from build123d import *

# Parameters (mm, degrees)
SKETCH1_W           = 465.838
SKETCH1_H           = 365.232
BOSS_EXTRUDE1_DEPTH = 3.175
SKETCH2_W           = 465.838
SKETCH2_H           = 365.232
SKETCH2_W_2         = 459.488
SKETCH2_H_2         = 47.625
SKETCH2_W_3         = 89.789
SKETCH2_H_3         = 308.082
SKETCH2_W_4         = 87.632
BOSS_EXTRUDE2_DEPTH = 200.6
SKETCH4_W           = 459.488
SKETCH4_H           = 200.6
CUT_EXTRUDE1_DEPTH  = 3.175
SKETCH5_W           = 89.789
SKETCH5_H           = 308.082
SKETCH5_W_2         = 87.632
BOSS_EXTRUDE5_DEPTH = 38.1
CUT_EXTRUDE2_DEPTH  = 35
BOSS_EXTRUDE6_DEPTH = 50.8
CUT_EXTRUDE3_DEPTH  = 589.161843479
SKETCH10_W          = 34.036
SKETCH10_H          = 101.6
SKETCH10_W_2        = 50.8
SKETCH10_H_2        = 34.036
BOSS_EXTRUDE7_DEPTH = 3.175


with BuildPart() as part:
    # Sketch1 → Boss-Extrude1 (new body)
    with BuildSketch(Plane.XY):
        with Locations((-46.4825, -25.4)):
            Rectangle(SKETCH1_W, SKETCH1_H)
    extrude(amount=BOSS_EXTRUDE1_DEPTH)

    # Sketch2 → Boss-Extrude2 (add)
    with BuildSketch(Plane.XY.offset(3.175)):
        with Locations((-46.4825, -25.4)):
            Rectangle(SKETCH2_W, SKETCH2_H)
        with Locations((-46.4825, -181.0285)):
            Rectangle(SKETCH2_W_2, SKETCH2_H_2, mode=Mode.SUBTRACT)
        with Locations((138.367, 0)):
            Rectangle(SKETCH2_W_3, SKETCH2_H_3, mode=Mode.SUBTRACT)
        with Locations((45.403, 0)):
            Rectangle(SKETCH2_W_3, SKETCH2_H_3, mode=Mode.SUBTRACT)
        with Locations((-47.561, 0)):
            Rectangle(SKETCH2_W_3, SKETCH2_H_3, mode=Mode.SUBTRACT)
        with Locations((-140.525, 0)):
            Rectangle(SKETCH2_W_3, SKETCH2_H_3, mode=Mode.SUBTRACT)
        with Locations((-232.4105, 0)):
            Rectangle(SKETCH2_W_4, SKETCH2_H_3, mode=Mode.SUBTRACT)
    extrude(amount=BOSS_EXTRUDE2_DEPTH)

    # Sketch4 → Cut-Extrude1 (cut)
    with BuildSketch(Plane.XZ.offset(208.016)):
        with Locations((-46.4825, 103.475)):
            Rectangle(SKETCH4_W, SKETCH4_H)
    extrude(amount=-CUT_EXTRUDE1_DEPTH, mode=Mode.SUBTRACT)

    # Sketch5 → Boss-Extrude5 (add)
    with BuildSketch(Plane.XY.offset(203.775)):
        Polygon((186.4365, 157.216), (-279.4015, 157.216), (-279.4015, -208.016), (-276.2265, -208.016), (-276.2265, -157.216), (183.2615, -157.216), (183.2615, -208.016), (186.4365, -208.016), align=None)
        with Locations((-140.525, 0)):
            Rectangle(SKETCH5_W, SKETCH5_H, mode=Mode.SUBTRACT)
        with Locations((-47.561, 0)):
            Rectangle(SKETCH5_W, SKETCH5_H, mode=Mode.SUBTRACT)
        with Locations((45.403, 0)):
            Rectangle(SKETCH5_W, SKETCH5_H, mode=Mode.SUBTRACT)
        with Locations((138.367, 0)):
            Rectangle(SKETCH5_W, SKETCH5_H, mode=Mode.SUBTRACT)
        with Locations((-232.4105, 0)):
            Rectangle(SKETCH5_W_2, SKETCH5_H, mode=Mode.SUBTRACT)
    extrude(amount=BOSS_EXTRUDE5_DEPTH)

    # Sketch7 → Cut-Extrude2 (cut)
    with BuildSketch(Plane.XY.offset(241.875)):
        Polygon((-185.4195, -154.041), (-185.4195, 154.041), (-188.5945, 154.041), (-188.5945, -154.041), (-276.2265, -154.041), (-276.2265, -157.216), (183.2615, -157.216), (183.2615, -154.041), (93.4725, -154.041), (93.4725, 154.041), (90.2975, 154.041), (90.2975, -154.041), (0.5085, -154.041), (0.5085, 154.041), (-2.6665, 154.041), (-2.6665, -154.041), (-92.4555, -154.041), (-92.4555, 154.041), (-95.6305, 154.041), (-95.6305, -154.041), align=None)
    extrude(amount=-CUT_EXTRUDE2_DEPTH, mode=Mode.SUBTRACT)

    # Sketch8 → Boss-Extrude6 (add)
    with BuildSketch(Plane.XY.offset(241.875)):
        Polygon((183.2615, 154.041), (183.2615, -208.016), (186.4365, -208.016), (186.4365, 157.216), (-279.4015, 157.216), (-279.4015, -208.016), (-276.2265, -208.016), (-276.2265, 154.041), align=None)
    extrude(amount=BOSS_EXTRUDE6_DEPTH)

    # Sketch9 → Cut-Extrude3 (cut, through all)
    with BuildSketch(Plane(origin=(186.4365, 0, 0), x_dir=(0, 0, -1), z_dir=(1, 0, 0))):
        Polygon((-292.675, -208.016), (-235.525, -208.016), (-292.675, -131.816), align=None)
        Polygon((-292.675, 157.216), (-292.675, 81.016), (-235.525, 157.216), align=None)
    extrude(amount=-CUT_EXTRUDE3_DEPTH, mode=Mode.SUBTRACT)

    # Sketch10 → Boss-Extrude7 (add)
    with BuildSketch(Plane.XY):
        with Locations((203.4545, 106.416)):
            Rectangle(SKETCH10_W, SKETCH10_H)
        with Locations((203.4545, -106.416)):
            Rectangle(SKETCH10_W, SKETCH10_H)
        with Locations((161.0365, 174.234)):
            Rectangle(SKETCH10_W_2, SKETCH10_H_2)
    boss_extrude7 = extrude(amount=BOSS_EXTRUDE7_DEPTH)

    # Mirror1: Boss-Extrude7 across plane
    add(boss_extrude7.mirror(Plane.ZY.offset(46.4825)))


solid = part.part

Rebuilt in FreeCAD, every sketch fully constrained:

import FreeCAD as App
import Part
import Sketcher

V = App.Vector
Q = App.Units.Quantity


def add_polygon(sketch, points):
    """Adds a closed chain of lines whose ends are joined by coincident constraints."""
    first, n = sketch.GeometryCount, len(points)
    for a, b in zip(points, points[1:] + points[:1]):
        sketch.addGeometry(Part.LineSegment(App.Vector(*a, 0), App.Vector(*b, 0)), False)
    for i in range(n):
        sketch.addConstraint(Sketcher.Constraint("Coincident", first + i, 2, first + (i + 1) % n, 1))

doc = App.newDocument("Part")
body = doc.addObject("PartDesign::Body", "Body")

# Sketch on XY plane
sketch1 = doc.addObject("Sketcher::SketchObject", "Sketch")
body.addObject(sketch1)
sketch1.AttachmentSupport = (doc.XY_Plane, [""])
sketch1.MapMode = "FlatFace"
add_polygon(sketch1, [(-279, 157), (-279, -208), (186, -208), (186, 157)])  # lines 0-3
sketch1.addConstraint(Sketcher.Constraint("Vertical", 0))
sketch1.addConstraint(Sketcher.Constraint("Horizontal", 1))
sketch1.addConstraint(Sketcher.Constraint("Vertical", 2))
sketch1.addConstraint(Sketcher.Constraint("Horizontal", 3))
sketch1.addConstraint(Sketcher.Constraint("DistanceX", 1, 1, 1, 2, 465.838))
sketch1.addConstraint(Sketcher.Constraint("DistanceY", 0, 2, 0, 1, 365.232))
sketch1.addConstraint(Sketcher.Constraint("DistanceX", 0, 2, -1, 1, 279.4015))
sketch1.addConstraint(Sketcher.Constraint("DistanceY", 0, 2, -1, 1, 208.016))
pad1 = doc.addObject("PartDesign::Pad", "Pad")
body.addObject(pad1)
pad1.Profile = sketch1
pad1.Length = Q("0.125 in")

# Sketch on XY plane
sketch2 = doc.addObject("Sketcher::SketchObject", "Sketch001")
body.addObject(sketch2)
sketch2.AttachmentSupport = (doc.XY_Plane, [""])
sketch2.MapMode = "FlatFace"
sketch2.AttachmentOffset = App.Placement(V(0, 0, 0.125 * 25.4), App.Rotation())
add_polygon(sketch2, [(-279, 157), (-279, -208), (186, -208), (186, 157)])  # lines 0-3
add_polygon(sketch2, [(183, -205), (-276, -205), (-276, -157), (183, -157)])  # lines 4-7
add_polygon(sketch2, [(-189, -154), (-276, -154), (-276, 154), (-189, 154)])  # lines 8-11
add_polygon(sketch2, [(-96, -154), (-185, -154), (-185, 154), (-96, 154)])  # lines 12-15
add_polygon(sketch2, [(-3, -154), (-92, -154), (-92, 154), (-3, 154)])  # lines 16-19
add_polygon(sketch2, [(90, -154), (1, -154), (1, 154), (90, 154)])  # lines 20-23
add_polygon(sketch2, [(183, -154), (93, -154), (93, 154), (183, 154)])  # lines 24-27
sketch2.addConstraint(Sketcher.Constraint("Vertical", 0))
sketch2.addConstraint(Sketcher.Constraint("Horizontal", 1))
sketch2.addConstraint(Sketcher.Constraint("Vertical", 2))
sketch2.addConstraint(Sketcher.Constraint("Horizontal", 3))
sketch2.addConstraint(Sketcher.Constraint("Horizontal", 4))
sketch2.addConstraint(Sketcher.Constraint("Vertical", 5))
sketch2.addConstraint(Sketcher.Constraint("Horizontal", 6))
sketch2.addConstraint(Sketcher.Constraint("Vertical", 7))
sketch2.addConstraint(Sketcher.Constraint("Horizontal", 8))
sketch2.addConstraint(Sketcher.Constraint("Vertical", 9))
sketch2.addConstraint(Sketcher.Constraint("Horizontal", 10))
sketch2.addConstraint(Sketcher.Constraint("Vertical", 11))
sketch2.addConstraint(Sketcher.Constraint("Horizontal", 12))
sketch2.addConstraint(Sketcher.Constraint("Vertical", 13))
sketch2.addConstraint(Sketcher.Constraint("Horizontal", 14))
sketch2.addConstraint(Sketcher.Constraint("Vertical", 15))
sketch2.addConstraint(Sketcher.Constraint("Horizontal", 16))
sketch2.addConstraint(Sketcher.Constraint("Vertical", 17))
sketch2.addConstraint(Sketcher.Constraint("Horizontal", 18))
sketch2.addConstraint(Sketcher.Constraint("Vertical", 19))
sketch2.addConstraint(Sketcher.Constraint("Horizontal", 20))
sketch2.addConstraint(Sketcher.Constraint("Vertical", 21))
sketch2.addConstraint(Sketcher.Constraint("Horizontal", 22))
sketch2.addConstraint(Sketcher.Constraint("Vertical", 23))
sketch2.addConstraint(Sketcher.Constraint("Horizontal", 24))
sketch2.addConstraint(Sketcher.Constraint("Vertical", 25))
sketch2.addConstraint(Sketcher.Constraint("Horizontal", 26))
sketch2.addConstraint(Sketcher.Constraint("Vertical", 27))
sketch2.addConstraint(Sketcher.Constraint("Horizontal", 11, 2, 12, 2))
sketch2.addConstraint(Sketcher.Constraint("Horizontal", 10, 2, 13, 2))
sketch2.addConstraint(Sketcher.Constraint("Horizontal", 15, 2, 16, 2))
sketch2.addConstraint(Sketcher.Constraint("Horizontal", 14, 2, 17, 2))
sketch2.addConstraint(Sketcher.Constraint("Horizontal", 19, 2, 20, 2))
sketch2.addConstraint(Sketcher.Constraint("Horizontal", 18, 2, 21, 2))
sketch2.addConstraint(Sketcher.Constraint("Horizontal", 23, 2, 24, 2))
sketch2.addConstraint(Sketcher.Constraint("Horizontal", 22, 2, 25, 2))
sketch2.addConstraint(Sketcher.Constraint("Vertical", 5, 2, 8, 2))
sketch2.addConstraint(Sketcher.Constraint("Vertical", 7, 2, 26, 2))
sketch2.addConstraint(Sketcher.Constraint("Equal", 14, 16))
sketch2.addConstraint(Sketcher.Constraint("Equal", 18, 20))
sketch2.addConstraint(Sketcher.Constraint("Equal", 22, 24))
sketch2.addConstraint(Sketcher.Constraint("DistanceY", 0, 2, 5, 2, Q("2 in")))
sketch2.addConstraint(Sketcher.Constraint("DistanceY", 4, 2, 8, 2, Q("2 in")))
sketch2.addConstraint(Sketcher.Constraint("DistanceX", 12, 2, 12, 1, Q("3.535 in")))
sketch2.addConstraint(Sketcher.Constraint("DistanceY", 5, 1, 5, 2, Q("1.875 in")))
sketch2.addConstraint(Sketcher.Constraint("DistanceX", 10, 2, 14, 2, Q("3.66 in")))
sketch2.addConstraint(Sketcher.Constraint("DistanceX", 12, 2, 16, 2, Q("3.66 in")))
sketch2.addConstraint(Sketcher.Constraint("DistanceX", 19, 2, 6, 2, Q("7.32 in")))
sketch2.addConstraint(Sketcher.Constraint("DistanceX", 16, 2, 20, 2, Q("3.66 in")))
sketch2.addConstraint(Sketcher.Constraint("DistanceX", 21, 2, 2, 2, Q("7.32 in")))
sketch2.addConstraint(Sketcher.Constraint("DistanceX", 0, 2, 4, 2, Q("0.125 in")))
sketch2.addConstraint(Sketcher.Constraint("DistanceY", 9, 2, 3, 2, Q("0.125 in")))
sketch2.addConstraint(Sketcher.Constraint("DistanceX", 1, 1, 1, 2, 465.838))
sketch2.addConstraint(Sketcher.Constraint("DistanceY", 0, 2, 0, 1, 365.232))
sketch2.addConstraint(Sketcher.Constraint("DistanceX", 0, 2, -1, 1, 279.4015))
sketch2.addConstraint(Sketcher.Constraint("DistanceY", 0, 2, -1, 1, 208.016))
pad2 = doc.addObject("PartDesign::Pad", "Pad001")
body.addObject(pad2)
pad2.Profile = sketch2
pad2.Length = 200.6

# Sketch on XZ plane
sketch3 = doc.addObject("Sketcher::SketchObject", "Sketch002")
body.addObject(sketch3)
sketch3.AttachmentSupport = (doc.XZ_Plane, [""])
sketch3.MapMode = "FlatFace"
sketch3.AttachmentOffset = App.Placement(V(0, 0, 208.016), App.Rotation())
add_polygon(sketch3, [(-276, 204), (-276, 3), (183, 3), (183, 204)])  # lines 0-3
sketch3.addConstraint(Sketcher.Constraint("Vertical", 0))
sketch3.addConstraint(Sketcher.Constraint("Horizontal", 1))
sketch3.addConstraint(Sketcher.Constraint("Vertical", 2))
sketch3.addConstraint(Sketcher.Constraint("Horizontal", 3))
sketch3.addConstraint(Sketcher.Constraint("DistanceY", -1, 1, 0, 2, Q("0.125 in")))
sketch3.addConstraint(Sketcher.Constraint("DistanceX", 1, 1, 1, 2, 459.488))
sketch3.addConstraint(Sketcher.Constraint("DistanceY", 0, 2, 0, 1, 200.6))
sketch3.addConstraint(Sketcher.Constraint("DistanceX", 0, 2, -1, 1, 276.2265))
pocket1 = doc.addObject("PartDesign::Pocket", "Pocket")
body.addObject(pocket1)
pocket1.Profile = sketch3
pocket1.Length = Q("0.125 in")

# Sketch on XY plane
sketch4 = doc.addObject("Sketcher::SketchObject", "Sketch003")
body.addObject(sketch4)
sketch4.AttachmentSupport = (doc.XY_Plane, [""])
sketch4.MapMode = "FlatFace"
sketch4.AttachmentOffset = App.Placement(V(0, 0, 203.775), App.Rotation())
add_polygon(sketch4, [(186.4, 157.2), (-279.4, 157.2), (-279.4, -208), (-276.2, -208), (-276.2, -157.2), (183.3, -157.2), (183.3, -208), (186.4, -208)])  # lines 0-7
add_polygon(sketch4, [(-188.6, -154), (-276.2, -154), (-276.2, 154), (-188.6, 154)])  # lines 8-11
add_polygon(sketch4, [(-95.6, -154), (-185.4, -154), (-185.4, 154), (-95.6, 154)])  # lines 12-15
add_polygon(sketch4, [(-2.7, -154), (-92.5, -154), (-92.5, 154), (-2.7, 154)])  # lines 16-19
add_polygon(sketch4, [(90.3, -154), (0.5, -154), (0.5, 154), (90.3, 154)])  # lines 20-23
add_polygon(sketch4, [(183.3, -154), (93.5, -154), (93.5, 154), (183.3, 154)])  # lines 24-27
sketch4.addConstraint(Sketcher.Constraint("Horizontal", 0))
sketch4.addConstraint(Sketcher.Constraint("Vertical", 1))
sketch4.addConstraint(Sketcher.Constraint("Horizontal", 2))
sketch4.addConstraint(Sketcher.Constraint("Vertical", 3))
sketch4.addConstraint(Sketcher.Constraint("Horizontal", 4))
sketch4.addConstraint(Sketcher.Constraint("Vertical", 5))
sketch4.addConstraint(Sketcher.Constraint("Horizontal", 6))
sketch4.addConstraint(Sketcher.Constraint("Vertical", 7))
sketch4.addConstraint(Sketcher.Constraint("Horizontal", 8))
sketch4.addConstraint(Sketcher.Constraint("Vertical", 9))
sketch4.addConstraint(Sketcher.Constraint("Horizontal", 10))
sketch4.addConstraint(Sketcher.Constraint("Vertical", 11))
sketch4.addConstraint(Sketcher.Constraint("Horizontal", 12))
sketch4.addConstraint(Sketcher.Constraint("Vertical", 13))
sketch4.addConstraint(Sketcher.Constraint("Horizontal", 14))
sketch4.addConstraint(Sketcher.Constraint("Vertical", 15))
sketch4.addConstraint(Sketcher.Constraint("Horizontal", 16))
sketch4.addConstraint(Sketcher.Constraint("Vertical", 17))
sketch4.addConstraint(Sketcher.Constraint("Horizontal", 18))
sketch4.addConstraint(Sketcher.Constraint("Vertical", 19))
sketch4.addConstraint(Sketcher.Constraint("Horizontal", 20))
sketch4.addConstraint(Sketcher.Constraint("Vertical", 21))
sketch4.addConstraint(Sketcher.Constraint("Horizontal", 22))
sketch4.addConstraint(Sketcher.Constraint("Vertical", 23))
sketch4.addConstraint(Sketcher.Constraint("Horizontal", 24))
sketch4.addConstraint(Sketcher.Constraint("Vertical", 25))
sketch4.addConstraint(Sketcher.Constraint("Horizontal", 26))
sketch4.addConstraint(Sketcher.Constraint("Vertical", 27))
sketch4.addConstraint(Sketcher.Constraint("Horizontal", 2, 2, 5, 2))
sketch4.addConstraint(Sketcher.Constraint("Horizontal", 11, 2, 12, 2))
sketch4.addConstraint(Sketcher.Constraint("Horizontal", 10, 2, 13, 2))
sketch4.addConstraint(Sketcher.Constraint("Horizontal", 15, 2, 16, 2))
sketch4.addConstraint(Sketcher.Constraint("Horizontal", 14, 2, 17, 2))
sketch4.addConstraint(Sketcher.Constraint("Horizontal", 19, 2, 20, 2))
sketch4.addConstraint(Sketcher.Constraint("Horizontal", 18, 2, 21, 2))
sketch4.addConstraint(Sketcher.Constraint("Horizontal", 23, 2, 24, 2))
sketch4.addConstraint(Sketcher.Constraint("Horizontal", 22, 2, 25, 2))
sketch4.addConstraint(Sketcher.Constraint("Vertical", 3, 2, 8, 2))
sketch4.addConstraint(Sketcher.Constraint("Vertical", 5, 2, 26, 2))
sketch4.addConstraint(Sketcher.Constraint("Equal", 2, 6))
sketch4.addConstraint(Sketcher.Constraint("Equal", 14, 16))
sketch4.addConstraint(Sketcher.Constraint("Equal", 18, 20))
sketch4.addConstraint(Sketcher.Constraint("Equal", 22, 24))
sketch4.addConstraint(Sketcher.Constraint("DistanceY", 3, 1, 3, 2, Q("2 in")))
sketch4.addConstraint(Sketcher.Constraint("DistanceX", 2, 1, 2, 2, Q("0.125 in")))
sketch4.addConstraint(Sketcher.Constraint("DistanceX", 12, 2, 12, 1, Q("3.535 in")))
sketch4.addConstraint(Sketcher.Constraint("DistanceX", 10, 2, 14, 2, Q("3.66 in")))
sketch4.addConstraint(Sketcher.Constraint("DistanceX", 12, 2, 16, 2, Q("3.66 in")))
sketch4.addConstraint(Sketcher.Constraint("DistanceX", 19, 2, 4, 2, Q("7.32 in")))
sketch4.addConstraint(Sketcher.Constraint("DistanceX", 16, 2, 20, 2, Q("3.66 in")))
sketch4.addConstraint(Sketcher.Constraint("DistanceY", 3, 2, 8, 2, Q("0.125 in")))
sketch4.addConstraint(Sketcher.Constraint("DistanceY", 9, 2, 0, 2, Q("0.125 in")))
sketch4.addConstraint(Sketcher.Constraint("DistanceX", 0, 2, 0, 1, 465.838))
sketch4.addConstraint(Sketcher.Constraint("DistanceY", 1, 2, 1, 1, 365.232))
sketch4.addConstraint(Sketcher.Constraint("DistanceX", 0, 2, -1, 1, 279.4015))
sketch4.addConstraint(Sketcher.Constraint("DistanceY", -1, 1, 0, 2, 157.216))
pad3 = doc.addObject("PartDesign::Pad", "Pad002")
body.addObject(pad3)
pad3.Profile = sketch4
pad3.Length = Q("1.5 in")

# Sketch on XY plane
sketch5 = doc.addObject("Sketcher::SketchObject", "Sketch004")
body.addObject(sketch5)
sketch5.AttachmentSupport = (doc.XY_Plane, [""])
sketch5.MapMode = "FlatFace"
sketch5.AttachmentOffset = App.Placement(V(0, 0, 241.875), App.Rotation())
add_polygon(sketch5, [(-185.4, -154), (-185.4, 154), (-188.6, 154), (-188.6, -154), (-276.2, -154), (-276.2, -157.2), (183.3, -157.2), (183.3, -154), (93.5, -154), (93.5, 154), (90.3, 154), (90.3, -154), (0.5, -154), (0.5, 154), (-2.7, 154), (-2.7, -154), (-92.5, -154), (-92.5, 154), (-95.6, 154), (-95.6, -154)])  # lines 0-19
sketch5.addConstraint(Sketcher.Constraint("Vertical", 0))
sketch5.addConstraint(Sketcher.Constraint("Horizontal", 1))
sketch5.addConstraint(Sketcher.Constraint("Vertical", 2))
sketch5.addConstraint(Sketcher.Constraint("Horizontal", 3))
sketch5.addConstraint(Sketcher.Constraint("Vertical", 4))
sketch5.addConstraint(Sketcher.Constraint("Horizontal", 5))
sketch5.addConstraint(Sketcher.Constraint("Vertical", 6))
sketch5.addConstraint(Sketcher.Constraint("Horizontal", 7))
sketch5.addConstraint(Sketcher.Constraint("Vertical", 8))
sketch5.addConstraint(Sketcher.Constraint("Horizontal", 9))
sketch5.addConstraint(Sketcher.Constraint("Vertical", 10))
sketch5.addConstraint(Sketcher.Constraint("Horizontal", 11))
sketch5.addConstraint(Sketcher.Constraint("Vertical", 12))
sketch5.addConstraint(Sketcher.Constraint("Horizontal", 13))
sketch5.addConstraint(Sketcher.Constraint("Vertical", 14))
sketch5.addConstraint(Sketcher.Constraint("Horizontal", 15))
sketch5.addConstraint(Sketcher.Constraint("Vertical", 16))
sketch5.addConstraint(Sketcher.Constraint("Horizontal", 17))
sketch5.addConstraint(Sketcher.Constraint("Vertical", 18))
sketch5.addConstraint(Sketcher.Constraint("Horizontal", 19))
sketch5.addConstraint(Sketcher.Constraint("Horizontal", 3, 2, 6, 2))
sketch5.addConstraint(Sketcher.Constraint("Horizontal", 1, 2, 8, 2))
sketch5.addConstraint(Sketcher.Constraint("Horizontal", 7, 2, 10, 2))
sketch5.addConstraint(Sketcher.Constraint("Horizontal", 9, 2, 12, 2))
sketch5.addConstraint(Sketcher.Constraint("Horizontal", 11, 2, 14, 2))
sketch5.addConstraint(Sketcher.Constraint("Horizontal", 13, 2, 16, 2))
sketch5.addConstraint(Sketcher.Constraint("Horizontal", 15, 2, 18, 2))
sketch5.addConstraint(Sketcher.Constraint("Equal", 1, 9))
sketch5.addConstraint(Sketcher.Constraint("Equal", 7, 11))
sketch5.addConstraint(Sketcher.Constraint("Equal", 9, 13))
sketch5.addConstraint(Sketcher.Constraint("Equal", 11, 15))
sketch5.addConstraint(Sketcher.Constraint("Equal", 13, 17))
sketch5.addConstraint(Sketcher.Constraint("Equal", 15, 19))
sketch5.addConstraint(Sketcher.Constraint("Equal", 17, 4))
sketch5.addConstraint(Sketcher.Constraint("DistanceX", 1, 2, 1, 1, Q("0.125 in")))
sketch5.addConstraint(Sketcher.Constraint("DistanceX", 7, 2, 7, 1, Q("3.535 in")))
sketch5.addConstraint(Sketcher.Constraint("DistanceX", 3, 2, 3, 1, 87.632))
sketch5.addConstraint(Sketcher.Constraint("DistanceY", 0, 1, 0, 2, 308.082))
sketch5.addConstraint(Sketcher.Constraint("DistanceX", 0, 2, -1, 1, 185.4195))
sketch5.addConstraint(Sketcher.Constraint("DistanceY", -1, 1, 0, 2, 154.041))
pocket2 = doc.addObject("PartDesign::Pocket", "Pocket001")
body.addObject(pocket2)
pocket2.Profile = sketch5
pocket2.Length = 35

# Sketch on XY plane
sketch6 = doc.addObject("Sketcher::SketchObject", "Sketch005")
body.addObject(sketch6)
sketch6.AttachmentSupport = (doc.XY_Plane, [""])
sketch6.MapMode = "FlatFace"
sketch6.AttachmentOffset = App.Placement(V(0, 0, 241.875), App.Rotation())
add_polygon(sketch6, [(183.3, 154), (183.3, -208), (186.4, -208), (186.4, 157.2), (-279.4, 157.2), (-279.4, -208), (-276.2, -208), (-276.2, 154)])  # lines 0-7
sketch6.addConstraint(Sketcher.Constraint("Vertical", 0))
sketch6.addConstraint(Sketcher.Constraint("Horizontal", 1))
sketch6.addConstraint(Sketcher.Constraint("Vertical", 2))
sketch6.addConstraint(Sketcher.Constraint("Horizontal", 3))
sketch6.addConstraint(Sketcher.Constraint("Vertical", 4))
sketch6.addConstraint(Sketcher.Constraint("Horizontal", 5))
sketch6.addConstraint(Sketcher.Constraint("Vertical", 6))
sketch6.addConstraint(Sketcher.Constraint("Horizontal", 7))
sketch6.addConstraint(Sketcher.Constraint("Horizontal", 1, 2, 4, 2))
sketch6.addConstraint(Sketcher.Constraint("Equal", 1, 5))
sketch6.addConstraint(Sketcher.Constraint("DistanceX", 1, 1, 1, 2, Q("0.125 in")))
sketch6.addConstraint(Sketcher.Constraint("DistanceY", 6, 2, 3, 2, Q("0.125 in")))
sketch6.addConstraint(Sketcher.Constraint("DistanceX", 3, 2, 3, 1, 465.838))
sketch6.addConstraint(Sketcher.Constraint("DistanceY", 0, 2, 0, 1, 362.057))
sketch6.addConstraint(Sketcher.Constraint("DistanceX", -1, 1, 0, 2, 183.2615))
sketch6.addConstraint(Sketcher.Constraint("DistanceY", 0, 2, -1, 1, 208.016))
pad4 = doc.addObject("PartDesign::Pad", "Pad003")
body.addObject(pad4)
pad4.Profile = sketch6
pad4.Length = Q("2 in")

# Sketch on YZ plane
sketch7 = doc.addObject("Sketcher::SketchObject", "Sketch006")
body.addObject(sketch7)
sketch7.AttachmentSupport = (doc.YZ_Plane, [""])
sketch7.MapMode = "FlatFace"
sketch7.AttachmentOffset = App.Placement(V(0, 0, 186.4365), App.Rotation())
add_polygon(sketch7, [(-208, 293), (-208, 236), (-132, 293)])  # lines 0-2
add_polygon(sketch7, [(157, 293), (81, 293), (157, 236)])  # lines 3-5
sketch7.addConstraint(Sketcher.Constraint("Vertical", 0))
sketch7.addConstraint(Sketcher.Constraint("Horizontal", 2))
sketch7.addConstraint(Sketcher.Constraint("Horizontal", 3))
sketch7.addConstraint(Sketcher.Constraint("Vertical", 5))
sketch7.addConstraint(Sketcher.Constraint("Horizontal", 2, 2, 3, 2))
sketch7.addConstraint(Sketcher.Constraint("Horizontal", 0, 2, 4, 2))
sketch7.addConstraint(Sketcher.Constraint("Equal", 2, 3))
sketch7.addConstraint(Sketcher.Constraint("DistanceX", 2, 2, 2, 1, Q("3 in")))
sketch7.addConstraint(Sketcher.Constraint("DistanceY", 0, 2, 0, 1, Q("2.25 in")))
sketch7.addConstraint(Sketcher.Constraint("DistanceX", 0, 2, -1, 1, 208.016))
sketch7.addConstraint(Sketcher.Constraint("DistanceY", -1, 1, 0, 2, 235.525))
sketch7.addConstraint(Sketcher.Constraint("DistanceX", -1, 1, 3, 2, 81.016))
pocket3 = doc.addObject("PartDesign::Pocket", "Pocket002")
body.addObject(pocket3)
pocket3.Profile = sketch7
pocket3.Type = "ThroughAll"

# Sketch on XY plane
sketch8 = doc.addObject("Sketcher::SketchObject", "Sketch007")
body.addObject(sketch8)
sketch8.AttachmentSupport = (doc.XY_Plane, [""])
sketch8.MapMode = "FlatFace"
add_polygon(sketch8, [(186, 157), (186, 56), (220, 56), (220, 157)])  # lines 0-3
add_polygon(sketch8, [(186, -56), (186, -157), (220, -157), (220, -56)])  # lines 4-7
add_polygon(sketch8, [(136, 191), (136, 157), (186, 157), (186, 191)])  # lines 8-11
sketch8.addConstraint(Sketcher.Constraint("Vertical", 0))
sketch8.addConstraint(Sketcher.Constraint("Horizontal", 1))
sketch8.addConstraint(Sketcher.Constraint("Vertical", 2))
sketch8.addConstraint(Sketcher.Constraint("Horizontal", 3))
sketch8.addConstraint(Sketcher.Constraint("Vertical", 4))
sketch8.addConstraint(Sketcher.Constraint("Horizontal", 5))
sketch8.addConstraint(Sketcher.Constraint("Vertical", 6))
sketch8.addConstraint(Sketcher.Constraint("Horizontal", 7))
sketch8.addConstraint(Sketcher.Constraint("Vertical", 8))
sketch8.addConstraint(Sketcher.Constraint("Horizontal", 9))
sketch8.addConstraint(Sketcher.Constraint("Vertical", 10))
sketch8.addConstraint(Sketcher.Constraint("Horizontal", 11))
sketch8.addConstraint(Sketcher.Constraint("Coincident", 9, 2, 3, 2))
sketch8.addConstraint(Sketcher.Constraint("Symmetric", 3, 2, 4, 2, -1))
sketch8.addConstraint(Sketcher.Constraint("Symmetric", 1, 2, 6, 2, -1))
sketch8.addConstraint(Sketcher.Constraint("Equal", 7, 8))
sketch8.addConstraint(Sketcher.Constraint("DistanceX", 9, 1, 9, 2, Q("2 in")))
sketch8.addConstraint(Sketcher.Constraint("DistanceY", 0, 2, 0, 1, Q("4 in")))
sketch8.addConstraint(Sketcher.Constraint("DistanceX", 1, 1, 1, 2, Q("1.34 in")))
sketch8.addConstraint(Sketcher.Constraint("DistanceX", -1, 1, 0, 2, 186.4365))
sketch8.addConstraint(Sketcher.Constraint("DistanceY", -1, 1, 0, 2, 55.616))
pad5 = doc.addObject("PartDesign::Pad", "Pad004")
body.addObject(pad5)
pad5.Profile = sketch8
pad5.Length = Q("0.125 in")
doc.recompute()

datumplane = doc.addObject("PartDesign::Plane", "DatumPlane")
body.addObject(datumplane)
datumplane.AttachmentSupport = (doc.YZ_Plane, [""])
datumplane.MapMode = "FlatFace"
datumplane.AttachmentOffset = App.Placement(V(0, 0, -46.4825), App.Rotation())
mirrored = doc.addObject("PartDesign::Mirrored", "Mirrored")
body.addObject(mirrored)
mirrored.Originals = [pad5]
mirrored.MirrorPlane = (datumplane, [""])
body.Tip = mirrored

doc.recompute()
